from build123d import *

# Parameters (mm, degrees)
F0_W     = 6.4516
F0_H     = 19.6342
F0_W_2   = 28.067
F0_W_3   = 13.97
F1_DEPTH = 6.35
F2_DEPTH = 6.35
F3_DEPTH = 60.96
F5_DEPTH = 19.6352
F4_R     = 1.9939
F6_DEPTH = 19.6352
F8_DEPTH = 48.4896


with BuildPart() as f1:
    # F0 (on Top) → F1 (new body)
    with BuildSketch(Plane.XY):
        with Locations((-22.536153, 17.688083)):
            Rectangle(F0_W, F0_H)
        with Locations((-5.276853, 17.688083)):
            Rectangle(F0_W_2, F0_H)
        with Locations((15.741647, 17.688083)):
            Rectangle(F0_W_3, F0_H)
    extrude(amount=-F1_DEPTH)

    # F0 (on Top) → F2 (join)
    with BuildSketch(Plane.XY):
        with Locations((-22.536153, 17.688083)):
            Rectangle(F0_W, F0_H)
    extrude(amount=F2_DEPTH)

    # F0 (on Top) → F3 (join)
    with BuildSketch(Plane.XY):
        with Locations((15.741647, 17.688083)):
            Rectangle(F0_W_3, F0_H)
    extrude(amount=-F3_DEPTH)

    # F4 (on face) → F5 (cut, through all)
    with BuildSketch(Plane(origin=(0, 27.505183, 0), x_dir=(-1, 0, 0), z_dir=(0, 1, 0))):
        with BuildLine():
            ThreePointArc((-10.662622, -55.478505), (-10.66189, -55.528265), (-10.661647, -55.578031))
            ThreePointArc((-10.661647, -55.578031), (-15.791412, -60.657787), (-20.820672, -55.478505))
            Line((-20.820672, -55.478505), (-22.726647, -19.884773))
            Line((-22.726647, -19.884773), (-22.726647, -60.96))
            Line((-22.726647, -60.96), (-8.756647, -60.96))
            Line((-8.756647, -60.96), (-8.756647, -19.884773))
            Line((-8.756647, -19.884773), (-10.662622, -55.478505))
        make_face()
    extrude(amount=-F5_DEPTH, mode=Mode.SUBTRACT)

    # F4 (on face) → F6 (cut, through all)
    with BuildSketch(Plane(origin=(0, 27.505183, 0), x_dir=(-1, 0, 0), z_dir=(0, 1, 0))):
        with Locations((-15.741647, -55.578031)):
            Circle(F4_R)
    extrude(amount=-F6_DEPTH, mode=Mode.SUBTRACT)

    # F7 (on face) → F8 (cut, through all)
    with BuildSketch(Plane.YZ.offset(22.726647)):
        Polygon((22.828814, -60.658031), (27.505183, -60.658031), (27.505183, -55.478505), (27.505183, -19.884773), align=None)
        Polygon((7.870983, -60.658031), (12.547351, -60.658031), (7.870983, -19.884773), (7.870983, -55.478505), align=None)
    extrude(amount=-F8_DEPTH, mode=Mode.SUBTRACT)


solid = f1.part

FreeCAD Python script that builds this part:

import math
import FreeCAD as App
import Part
import Sketcher
Q = App.Units.Quantity


def add_polygon(sketch, points):
    """Adds a closed chain of lines whose ends are joined by coincident constraints."""
    first, n = sketch.GeometryCount, len(points)
    for a, b in zip(points, points[1:] + points[:1]):
        sketch.addGeometry(Part.LineSegment(App.Vector(*a, 0), App.Vector(*b, 0)), False)
    for i in range(n):
        sketch.addConstraint(Sketcher.Constraint("Coincident", first + i, 2, first + (i + 1) % n, 1))

doc = App.newDocument("Part")
body = doc.addObject("PartDesign::Body", "Body")

# Sketch on XY plane
sketch1 = body.newObject("Sketcher::SketchObject", "Sketch")
sketch1.AttachmentSupport = (doc.getObject("XY_Plane"), [""])
sketch1.MapMode = "FlatFace"
add_polygon(sketch1, [(-26, 28), (-26, 8), (23, 8), (23, 28)])  # lines 0-3
sketch1.addConstraint(Sketcher.Constraint("Vertical", 0))
sketch1.addConstraint(Sketcher.Constraint("Horizontal", 1))
sketch1.addConstraint(Sketcher.Constraint("Vertical", 2))
sketch1.addConstraint(Sketcher.Constraint("Horizontal", 3))
sketch1.addConstraint(Sketcher.Constraint("DistanceX", 1, 1, 1, 2, Q("1.909 in")))
sketch1.addConstraint(Sketcher.Constraint("DistanceY", 0, 2, 0, 1, Q("0.773 in")))
sketch1.addConstraint(Sketcher.Constraint("DistanceX", 0, 2, -1, 1, Q("25.761953 mm")))
sketch1.addConstraint(Sketcher.Constraint("DistanceY", -1, 1, 0, 2, Q("7.870983 mm")))
pad1 = body.newObject("PartDesign::Pad", "Pad")
pad1.Profile = sketch1
pad1.Length = Q("0.25 in")
pad1.Reversed = True

# Sketch on XY plane
sketch2 = body.newObject("Sketcher::SketchObject", "Sketch001")
sketch2.AttachmentSupport = (doc.getObject("XY_Plane"), [""])
sketch2.MapMode = "FlatFace"
add_polygon(sketch2, [(-26, 28), (-26, 8), (-19, 8), (-19, 28)])  # lines 0-3
sketch2.addConstraint(Sketcher.Constraint("Vertical", 0))
sketch2.addConstraint(Sketcher.Constraint("Horizontal", 1))
sketch2.addConstraint(Sketcher.Constraint("Vertical", 2))
sketch2.addConstraint(Sketcher.Constraint("Horizontal", 3))
sketch2.addConstraint(Sketcher.Constraint("DistanceX", 1, 1, 1, 2, Q("0.254 in")))
sketch2.addConstraint(Sketcher.Constraint("DistanceY", 0, 2, 0, 1, Q("0.773 in")))
sketch2.addConstraint(Sketcher.Constraint("DistanceX", 0, 2, -1, 1, Q("25.761953 mm")))
sketch2.addConstraint(Sketcher.Constraint("DistanceY", -1, 1, 0, 2, Q("7.870983 mm")))
pad2 = body.newObject("PartDesign::Pad", "Pad001")
pad2.Profile = sketch2
pad2.Length = Q("0.25 in")

# Sketch on XY plane
sketch3 = body.newObject("Sketcher::SketchObject", "Sketch002")
sketch3.AttachmentSupport = (doc.getObject("XY_Plane"), [""])
sketch3.MapMode = "FlatFace"
add_polygon(sketch3, [(9, 28), (9, 8), (23, 8), (23, 28)])  # lines 0-3
sketch3.addConstraint(Sketcher.Constraint("Vertical", 0))
sketch3.addConstraint(Sketcher.Constraint("Horizontal", 1))
sketch3.addConstraint(Sketcher.Constraint("Vertical", 2))
sketch3.addConstraint(Sketcher.Constraint("Horizontal", 3))
sketch3.addConstraint(Sketcher.Constraint("DistanceX", 1, 1, 1, 2, Q("0.55 in")))
sketch3.addConstraint(Sketcher.Constraint("DistanceY", 0, 2, 0, 1, Q("0.773 in")))
sketch3.addConstraint(Sketcher.Constraint("DistanceX", -1, 1, 0, 2, Q("8.756647 mm")))
sketch3.addConstraint(Sketcher.Constraint("DistanceY", -1, 1, 0, 2, Q("7.870983 mm")))
pad3 = body.newObject("PartDesign::Pad", "Pad002")
pad3.Profile = sketch3
pad3.Length = Q("2.4 in")
pad3.Reversed = True

# Sketch on XZ plane
sketch4 = body.newObject("Sketcher::SketchObject", "Sketch003")
sketch4.AttachmentSupport = (doc.getObject("XZ_Plane"), [""])
sketch4.MapMode = "FlatFace"
sketch4.AttachmentOffset = App.Placement(App.Vector(0, 0, -27.505183), App.Rotation())
sketch4.addGeometry(Part.ArcOfCircle(Part.Circle(App.Vector(15.73, -55.58, 0), App.Vector(0, 0, 1), 5.06), math.radians(178.88), math.radians(180)), False)
sketch4.addGeometry(Part.ArcOfCircle(Part.Circle(App.Vector(15.74, -55.58, 0), App.Vector(0, 0, 1), 5.08), math.radians(-180), math.radians(1)), False)
sketch4.addGeometry(Part.LineSegment(App.Vector(20.82, -55.48, 0), App.Vector(22.73, -19.88, 0)), False)
sketch4.addGeometry(Part.LineSegment(App.Vector(22.73, -19.88, 0), App.Vector(22.73, -60.96, 0)), False)
sketch4.addGeometry(Part.LineSegment(App.Vector(22.73, -60.96, 0), App.Vector(8.76, -60.96, 0)), False)
sketch4.addGeometry(Part.LineSegment(App.Vector(8.76, -60.96, 0), App.Vector(8.76, -19.88, 0)), False)
sketch4.addGeometry(Part.LineSegment(App.Vector(8.76, -19.88, 0), App.Vector(10.66, -55.48, 0)), False)
sketch4.addConstraint(Sketcher.Constraint("Coincident", 0, 2, 1, 1))
sketch4.addConstraint(Sketcher.Constraint("Coincident", 1, 2, 2, 1))
sketch4.addConstraint(Sketcher.Constraint("Coincident", 2, 2, 3, 1))
sketch4.addConstraint(Sketcher.Constraint("Coincident", 3, 2, 4, 1))
sketch4.addConstraint(Sketcher.Constraint("Coincident", 4, 2, 5, 1))
sketch4.addConstraint(Sketcher.Constraint("Coincident", 5, 2, 6, 1))
sketch4.addConstraint(Sketcher.Constraint("Coincident", 6, 2, 0, 1))
sketch4.addConstraint(Sketcher.Constraint("Vertical", 3))
sketch4.addConstraint(Sketcher.Constraint("Horizontal", 4))
sketch4.addConstraint(Sketcher.Constraint("Vertical", 5))
sketch4.addConstraint(Sketcher.Constraint("Horizontal", 1, 3, 0, 2))
sketch4.addConstraint(Sketcher.Constraint("Horizontal", 2, 2, 5, 2))
sketch4.addConstraint(Sketcher.Constraint("Horizontal", 1, 2, 6, 2))
sketch4.addConstraint(Sketcher.Constraint("Equal", 2, 6))
sketch4.addConstraint(Sketcher.Constraint("Radius", 1, Q("0.2 in")))
sketch4.addConstraint(Sketcher.Constraint("DistanceX", 4, 2, 4, 1, Q("0.55 in")))
sketch4.addConstraint(Sketcher.Constraint("DistanceY", 3, 2, -1, 1, Q("2.4 in")))
sketch4.addConstraint(Sketcher.Constraint("DistanceX", 1, 3, 2, 2, Q("0.275 in")))
sketch4.addConstraint(Sketcher.Constraint("Radius", 0, Q("5.064366 mm")))
sketch4.addConstraint(Sketcher.Constraint("DistanceY", 3, 2, 3, 1, Q("41.075227 mm")))
sketch4.addConstraint(Sketcher.Constraint("DistanceY", 1, 3, -1, 1, Q("55.578031 mm")))
sketch4.addConstraint(Sketcher.Constraint("DistanceX", 0, 3, 1, 2, Q("5.094659 mm")))
sketch4.addConstraint(Sketcher.Constraint("DistanceX", -1, 1, 0, 3, Q("15.726013 mm")))
pocket1 = body.newObject("PartDesign::Pocket", "Pocket")
pocket1.Profile = sketch4
pocket1.Type = "ThroughAll"
pocket1.Reversed = True

# Sketch on XZ plane
sketch5 = body.newObject("Sketcher::SketchObject", "Sketch004")
sketch5.AttachmentSupport = (doc.getObject("XZ_Plane"), [""])
sketch5.MapMode = "FlatFace"
sketch5.AttachmentOffset = App.Placement(App.Vector(0, 0, -27.505183), App.Rotation())
sketch5.addGeometry(Part.Circle(App.Vector(15.7, -55.6, 0), App.Vector(0, 0, 1), 2), False)
sketch5.addConstraint(Sketcher.Constraint("Diameter", 0, Q("0.157 in")))
sketch5.addConstraint(Sketcher.Constraint("DistanceY", 0, 3, -1, 1, Q("55.578031 mm")))
sketch5.addConstraint(Sketcher.Constraint("DistanceX", -1, 1, 0, 3, Q("15.741647 mm")))
pocket2 = body.newObject("PartDesign::Pocket", "Pocket001")
pocket2.Profile = sketch5
pocket2.Type = "ThroughAll"
pocket2.Reversed = True

# Sketch on YZ plane
sketch6 = body.newObject("Sketcher::SketchObject", "Sketch005")
sketch6.AttachmentSupport = (doc.getObject("YZ_Plane"), [""])
sketch6.MapMode = "FlatFace"
sketch6.AttachmentOffset = App.Placement(App.Vector(0, 0, 22.726647), App.Rotation())
add_polygon(sketch6, [(22.8, -60.7), (27.5, -60.7), (27.5, -19.9)])  # lines 0-2
add_polygon(sketch6, [(7.9, -60.7), (12.5, -60.7), (7.9, -19.9)])  # lines 3-5
sketch6.addConstraint(Sketcher.Constraint("Horizontal", 0))
sketch6.addConstraint(Sketcher.Constraint("Vertical", 1))
sketch6.addConstraint(Sketcher.Constraint("Horizontal", 3))
sketch6.addConstraint(Sketcher.Constraint("Vertical", 5))
sketch6.addConstraint(Sketcher.Constraint("Horizontal", 2, 2, 3, 2))
sketch6.addConstraint(Sketcher.Constraint("Horizontal", 1, 2, 4, 2))
sketch6.addConstraint(Sketcher.Constraint("Equal", 0, 3))
sketch6.addConstraint(Sketcher.Constraint("DistanceX", 4, 2, 1, 2, Q("0.773 in")))
sketch6.addConstraint(Sketcher.Constraint("DistanceX", 0, 1, 0, 2, Q("4.676369 mm")))
sketch6.addConstraint(Sketcher.Constraint("DistanceY", 1, 1, 1, 2, Q("40.773258 mm")))
sketch6.addConstraint(Sketcher.Constraint("DistanceY", 0, 2, -1, 1, Q("60.658031 mm")))
sketch6.addConstraint(Sketcher.Constraint("DistanceX", -1, 1, 3, 2, Q("12.547351 mm")))
pocket3 = body.newObject("PartDesign::Pocket", "Pocket002")
pocket3.Profile = sketch6
pocket3.Type = "ThroughAll"

doc.recompute()
